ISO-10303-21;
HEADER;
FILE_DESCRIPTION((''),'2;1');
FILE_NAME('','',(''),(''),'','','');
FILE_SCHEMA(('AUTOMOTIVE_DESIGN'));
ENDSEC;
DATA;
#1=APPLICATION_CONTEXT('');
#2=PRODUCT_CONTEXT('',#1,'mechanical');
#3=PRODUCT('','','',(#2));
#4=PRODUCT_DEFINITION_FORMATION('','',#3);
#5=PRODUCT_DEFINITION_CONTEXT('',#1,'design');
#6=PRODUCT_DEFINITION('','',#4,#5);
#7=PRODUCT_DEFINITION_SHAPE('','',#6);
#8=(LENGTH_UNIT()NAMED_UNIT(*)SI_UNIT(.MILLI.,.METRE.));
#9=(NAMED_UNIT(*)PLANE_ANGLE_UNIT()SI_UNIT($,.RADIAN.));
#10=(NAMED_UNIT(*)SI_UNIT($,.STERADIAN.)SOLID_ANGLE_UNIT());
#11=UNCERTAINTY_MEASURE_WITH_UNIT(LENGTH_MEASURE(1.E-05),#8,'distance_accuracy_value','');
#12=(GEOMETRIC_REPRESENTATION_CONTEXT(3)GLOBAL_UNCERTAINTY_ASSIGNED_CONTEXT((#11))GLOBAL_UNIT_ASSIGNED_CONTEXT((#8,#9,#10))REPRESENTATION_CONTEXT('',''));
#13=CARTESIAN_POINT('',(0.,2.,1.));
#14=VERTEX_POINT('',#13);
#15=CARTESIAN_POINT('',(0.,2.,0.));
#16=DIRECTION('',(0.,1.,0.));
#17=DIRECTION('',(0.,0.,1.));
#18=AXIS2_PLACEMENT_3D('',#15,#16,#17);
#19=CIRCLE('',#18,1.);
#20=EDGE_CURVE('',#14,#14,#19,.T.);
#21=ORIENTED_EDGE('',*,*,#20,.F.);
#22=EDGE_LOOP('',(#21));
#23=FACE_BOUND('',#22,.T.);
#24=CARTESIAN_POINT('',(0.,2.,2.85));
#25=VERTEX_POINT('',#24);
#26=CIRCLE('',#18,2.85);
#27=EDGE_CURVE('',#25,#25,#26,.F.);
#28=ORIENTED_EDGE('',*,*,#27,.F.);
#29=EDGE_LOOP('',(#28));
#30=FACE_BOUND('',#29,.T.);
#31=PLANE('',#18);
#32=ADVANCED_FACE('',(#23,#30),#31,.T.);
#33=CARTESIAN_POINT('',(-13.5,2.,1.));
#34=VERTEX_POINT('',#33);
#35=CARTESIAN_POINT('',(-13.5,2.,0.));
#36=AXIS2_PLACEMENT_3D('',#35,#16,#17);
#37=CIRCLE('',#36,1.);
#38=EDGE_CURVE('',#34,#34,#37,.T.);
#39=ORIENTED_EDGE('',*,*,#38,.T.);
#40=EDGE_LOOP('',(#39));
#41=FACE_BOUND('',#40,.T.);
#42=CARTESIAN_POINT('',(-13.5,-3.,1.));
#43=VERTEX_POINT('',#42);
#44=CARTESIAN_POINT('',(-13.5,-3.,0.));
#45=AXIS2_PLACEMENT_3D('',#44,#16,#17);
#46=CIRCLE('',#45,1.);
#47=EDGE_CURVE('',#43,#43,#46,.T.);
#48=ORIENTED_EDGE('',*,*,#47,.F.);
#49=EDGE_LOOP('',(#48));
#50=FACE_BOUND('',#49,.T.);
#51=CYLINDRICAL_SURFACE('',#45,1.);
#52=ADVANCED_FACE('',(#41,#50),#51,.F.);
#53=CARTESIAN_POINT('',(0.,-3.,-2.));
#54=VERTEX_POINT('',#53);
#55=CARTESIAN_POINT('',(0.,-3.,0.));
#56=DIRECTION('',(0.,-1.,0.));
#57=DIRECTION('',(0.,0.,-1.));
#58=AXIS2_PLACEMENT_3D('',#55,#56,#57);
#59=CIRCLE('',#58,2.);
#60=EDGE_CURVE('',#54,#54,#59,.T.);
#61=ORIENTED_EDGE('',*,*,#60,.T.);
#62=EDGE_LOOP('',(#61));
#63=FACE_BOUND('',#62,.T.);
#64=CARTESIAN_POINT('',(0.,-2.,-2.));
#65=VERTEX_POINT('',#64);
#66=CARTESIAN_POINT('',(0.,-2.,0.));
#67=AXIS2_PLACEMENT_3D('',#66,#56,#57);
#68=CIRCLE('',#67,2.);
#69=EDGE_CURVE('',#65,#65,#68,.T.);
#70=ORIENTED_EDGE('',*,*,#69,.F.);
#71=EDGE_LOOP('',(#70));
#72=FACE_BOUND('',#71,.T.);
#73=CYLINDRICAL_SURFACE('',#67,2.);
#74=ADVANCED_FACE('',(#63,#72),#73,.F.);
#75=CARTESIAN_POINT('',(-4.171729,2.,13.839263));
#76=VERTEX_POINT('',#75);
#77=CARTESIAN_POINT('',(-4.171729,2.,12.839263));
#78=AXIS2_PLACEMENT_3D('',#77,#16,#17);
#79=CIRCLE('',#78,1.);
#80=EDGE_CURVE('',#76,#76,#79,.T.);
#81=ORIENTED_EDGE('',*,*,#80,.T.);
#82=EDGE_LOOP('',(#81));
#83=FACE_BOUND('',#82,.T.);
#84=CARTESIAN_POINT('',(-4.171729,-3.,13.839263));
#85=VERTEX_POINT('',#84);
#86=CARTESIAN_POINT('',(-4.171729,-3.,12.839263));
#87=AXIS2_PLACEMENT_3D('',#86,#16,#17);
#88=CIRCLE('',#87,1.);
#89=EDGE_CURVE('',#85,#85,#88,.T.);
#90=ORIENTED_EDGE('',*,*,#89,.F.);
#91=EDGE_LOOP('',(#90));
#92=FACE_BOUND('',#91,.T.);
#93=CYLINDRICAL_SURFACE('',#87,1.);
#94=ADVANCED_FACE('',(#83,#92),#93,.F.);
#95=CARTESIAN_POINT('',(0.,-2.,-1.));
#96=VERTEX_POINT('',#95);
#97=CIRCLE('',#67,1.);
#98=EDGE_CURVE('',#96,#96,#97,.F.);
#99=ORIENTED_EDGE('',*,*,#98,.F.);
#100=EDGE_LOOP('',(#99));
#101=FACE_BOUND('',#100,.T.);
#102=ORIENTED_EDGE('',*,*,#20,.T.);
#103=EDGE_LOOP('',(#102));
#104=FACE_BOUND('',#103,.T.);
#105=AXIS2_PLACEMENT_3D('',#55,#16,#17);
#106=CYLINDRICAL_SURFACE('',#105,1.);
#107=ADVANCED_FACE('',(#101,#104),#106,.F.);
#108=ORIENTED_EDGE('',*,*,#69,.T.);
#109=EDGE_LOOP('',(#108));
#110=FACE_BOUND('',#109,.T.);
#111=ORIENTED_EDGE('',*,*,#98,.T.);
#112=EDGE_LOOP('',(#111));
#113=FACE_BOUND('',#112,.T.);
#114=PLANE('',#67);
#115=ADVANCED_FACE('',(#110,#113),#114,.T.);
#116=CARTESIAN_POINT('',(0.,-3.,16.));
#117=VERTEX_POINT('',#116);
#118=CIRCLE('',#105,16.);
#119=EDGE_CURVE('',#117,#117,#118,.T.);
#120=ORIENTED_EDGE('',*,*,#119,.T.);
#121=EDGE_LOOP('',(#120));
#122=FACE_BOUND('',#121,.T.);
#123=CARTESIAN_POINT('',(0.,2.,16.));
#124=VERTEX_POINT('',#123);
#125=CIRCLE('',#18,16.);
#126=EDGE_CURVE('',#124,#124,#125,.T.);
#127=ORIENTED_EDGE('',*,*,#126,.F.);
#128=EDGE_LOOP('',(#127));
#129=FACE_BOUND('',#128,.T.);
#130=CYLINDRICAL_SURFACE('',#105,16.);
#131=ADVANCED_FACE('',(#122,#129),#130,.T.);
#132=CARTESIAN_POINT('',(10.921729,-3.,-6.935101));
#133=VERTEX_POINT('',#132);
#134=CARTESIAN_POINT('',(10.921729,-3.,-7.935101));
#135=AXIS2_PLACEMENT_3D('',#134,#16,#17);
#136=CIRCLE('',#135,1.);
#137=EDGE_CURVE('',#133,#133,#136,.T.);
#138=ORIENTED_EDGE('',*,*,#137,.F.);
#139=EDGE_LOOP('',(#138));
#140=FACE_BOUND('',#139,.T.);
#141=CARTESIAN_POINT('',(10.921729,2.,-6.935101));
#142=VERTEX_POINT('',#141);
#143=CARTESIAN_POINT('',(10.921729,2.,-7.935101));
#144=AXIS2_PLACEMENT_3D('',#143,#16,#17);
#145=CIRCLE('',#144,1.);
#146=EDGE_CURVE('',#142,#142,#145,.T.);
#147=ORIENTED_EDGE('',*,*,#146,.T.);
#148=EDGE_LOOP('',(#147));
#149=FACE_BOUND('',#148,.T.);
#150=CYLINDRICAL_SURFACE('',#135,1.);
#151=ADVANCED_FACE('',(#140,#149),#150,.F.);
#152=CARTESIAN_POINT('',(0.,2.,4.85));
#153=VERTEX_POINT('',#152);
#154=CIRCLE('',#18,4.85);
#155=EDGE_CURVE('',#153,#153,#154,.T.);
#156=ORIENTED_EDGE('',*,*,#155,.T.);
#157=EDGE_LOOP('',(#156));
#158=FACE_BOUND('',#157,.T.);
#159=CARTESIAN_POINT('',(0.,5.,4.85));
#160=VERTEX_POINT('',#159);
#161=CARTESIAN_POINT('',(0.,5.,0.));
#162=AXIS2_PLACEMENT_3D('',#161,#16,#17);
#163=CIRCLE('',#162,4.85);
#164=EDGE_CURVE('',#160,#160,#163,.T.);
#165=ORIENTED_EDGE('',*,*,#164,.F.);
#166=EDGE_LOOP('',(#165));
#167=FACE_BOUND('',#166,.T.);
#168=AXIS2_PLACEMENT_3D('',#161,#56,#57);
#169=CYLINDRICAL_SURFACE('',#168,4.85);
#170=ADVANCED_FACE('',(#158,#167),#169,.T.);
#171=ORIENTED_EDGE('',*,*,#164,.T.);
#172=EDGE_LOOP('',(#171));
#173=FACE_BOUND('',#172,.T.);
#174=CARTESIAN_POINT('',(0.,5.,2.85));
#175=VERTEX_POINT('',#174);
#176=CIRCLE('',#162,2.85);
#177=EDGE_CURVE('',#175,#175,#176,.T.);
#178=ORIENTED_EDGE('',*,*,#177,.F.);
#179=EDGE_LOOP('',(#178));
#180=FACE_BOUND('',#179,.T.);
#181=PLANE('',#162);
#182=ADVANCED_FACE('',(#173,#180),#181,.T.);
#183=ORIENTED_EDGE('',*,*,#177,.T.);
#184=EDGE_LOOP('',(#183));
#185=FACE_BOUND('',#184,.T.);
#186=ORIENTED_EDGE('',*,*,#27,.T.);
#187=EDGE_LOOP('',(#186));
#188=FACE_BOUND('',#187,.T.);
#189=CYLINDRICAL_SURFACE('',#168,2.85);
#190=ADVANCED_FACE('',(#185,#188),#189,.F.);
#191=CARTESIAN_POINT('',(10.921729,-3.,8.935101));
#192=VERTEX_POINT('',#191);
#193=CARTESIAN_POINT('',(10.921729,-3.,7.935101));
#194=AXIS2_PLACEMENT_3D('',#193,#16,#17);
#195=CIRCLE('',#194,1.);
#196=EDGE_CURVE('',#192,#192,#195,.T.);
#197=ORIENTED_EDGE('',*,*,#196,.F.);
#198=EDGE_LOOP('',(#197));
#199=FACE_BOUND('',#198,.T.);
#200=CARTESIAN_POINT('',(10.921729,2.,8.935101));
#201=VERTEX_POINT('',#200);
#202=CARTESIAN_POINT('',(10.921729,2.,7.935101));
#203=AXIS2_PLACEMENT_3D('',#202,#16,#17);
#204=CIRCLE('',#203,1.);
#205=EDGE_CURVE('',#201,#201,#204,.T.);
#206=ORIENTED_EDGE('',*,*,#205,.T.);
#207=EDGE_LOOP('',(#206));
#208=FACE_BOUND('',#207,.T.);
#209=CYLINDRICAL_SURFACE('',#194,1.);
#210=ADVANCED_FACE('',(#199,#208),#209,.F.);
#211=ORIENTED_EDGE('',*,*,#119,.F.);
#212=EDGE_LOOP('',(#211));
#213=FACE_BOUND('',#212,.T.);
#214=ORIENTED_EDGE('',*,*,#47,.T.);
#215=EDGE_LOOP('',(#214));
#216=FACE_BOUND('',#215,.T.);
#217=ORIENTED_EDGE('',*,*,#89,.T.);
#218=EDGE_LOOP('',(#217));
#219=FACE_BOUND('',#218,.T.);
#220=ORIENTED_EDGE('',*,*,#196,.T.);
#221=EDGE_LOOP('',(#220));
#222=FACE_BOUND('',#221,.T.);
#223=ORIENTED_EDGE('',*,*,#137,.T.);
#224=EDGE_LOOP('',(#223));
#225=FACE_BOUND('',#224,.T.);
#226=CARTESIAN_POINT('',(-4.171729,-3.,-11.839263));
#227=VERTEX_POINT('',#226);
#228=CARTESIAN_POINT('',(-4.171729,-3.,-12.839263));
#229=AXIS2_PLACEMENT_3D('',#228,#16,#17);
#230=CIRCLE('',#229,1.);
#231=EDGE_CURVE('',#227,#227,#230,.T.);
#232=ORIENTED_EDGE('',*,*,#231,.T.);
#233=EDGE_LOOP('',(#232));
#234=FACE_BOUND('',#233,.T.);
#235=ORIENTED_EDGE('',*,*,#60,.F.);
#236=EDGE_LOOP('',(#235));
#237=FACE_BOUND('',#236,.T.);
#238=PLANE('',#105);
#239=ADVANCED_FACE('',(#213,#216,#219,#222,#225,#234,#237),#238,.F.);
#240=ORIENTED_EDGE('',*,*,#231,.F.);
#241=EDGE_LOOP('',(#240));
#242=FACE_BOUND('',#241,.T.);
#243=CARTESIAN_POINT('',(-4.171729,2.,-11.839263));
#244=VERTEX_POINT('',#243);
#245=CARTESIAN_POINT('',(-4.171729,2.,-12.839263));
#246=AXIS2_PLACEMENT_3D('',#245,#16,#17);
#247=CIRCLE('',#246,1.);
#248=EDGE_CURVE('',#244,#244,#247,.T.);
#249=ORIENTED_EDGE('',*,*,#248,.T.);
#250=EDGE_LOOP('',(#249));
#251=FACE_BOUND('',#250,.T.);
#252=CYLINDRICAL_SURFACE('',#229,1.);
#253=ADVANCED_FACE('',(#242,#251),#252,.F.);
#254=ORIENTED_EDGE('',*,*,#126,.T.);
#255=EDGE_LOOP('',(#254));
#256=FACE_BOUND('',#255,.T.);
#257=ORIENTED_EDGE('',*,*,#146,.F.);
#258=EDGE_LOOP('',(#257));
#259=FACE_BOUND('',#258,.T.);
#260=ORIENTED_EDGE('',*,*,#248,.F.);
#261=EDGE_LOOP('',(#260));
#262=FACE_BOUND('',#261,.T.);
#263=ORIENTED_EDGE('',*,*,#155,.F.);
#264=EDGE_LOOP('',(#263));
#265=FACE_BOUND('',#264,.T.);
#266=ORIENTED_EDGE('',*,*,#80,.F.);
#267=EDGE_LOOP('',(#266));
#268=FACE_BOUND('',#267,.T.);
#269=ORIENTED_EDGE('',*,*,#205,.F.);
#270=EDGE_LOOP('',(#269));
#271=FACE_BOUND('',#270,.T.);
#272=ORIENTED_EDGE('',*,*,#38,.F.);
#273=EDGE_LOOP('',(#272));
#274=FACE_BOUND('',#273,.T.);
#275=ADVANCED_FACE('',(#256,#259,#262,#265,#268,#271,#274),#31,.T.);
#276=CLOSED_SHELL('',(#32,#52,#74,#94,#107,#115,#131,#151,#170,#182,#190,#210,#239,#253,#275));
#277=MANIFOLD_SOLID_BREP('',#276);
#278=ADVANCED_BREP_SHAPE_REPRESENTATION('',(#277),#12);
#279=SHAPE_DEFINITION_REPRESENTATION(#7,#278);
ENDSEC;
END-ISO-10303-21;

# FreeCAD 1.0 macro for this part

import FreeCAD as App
import Part
import Sketcher

V = App.Vector

doc = App.newDocument("Part")
params = doc.addObject("Spreadsheet::Sheet", "Params")
for row, (alias, value) in enumerate([
    ("sketch1_diameter", "32 mm"),
    ("sketch1_diameter2", "2 mm"),
    ("pad1_length", "2 mm"),
    ("pad1_length2", "3 mm"),
    ("sketch2_diameter", "9.7 mm"),
    ("sketch2_diameter2", "5.7 mm"),
    ("pad2_length", "3 mm"),
    ("sketch3_diameter", "4 mm"),
    ("pocket1_length", "1 mm"),
], start=1):
    params.set(f"A{row}", alias)
    params.set(f"B{row}", "=" + value)
    params.setAlias(f"B{row}", alias)

body = doc.addObject("PartDesign::Body", "Body")

sketch1 = doc.addObject("Sketcher::SketchObject", "Sketch")
body.addObject(sketch1)
sketch1.AttachmentSupport = (doc.XZ_Plane, [""])
sketch1.MapMode = "FlatFace"
sketch1.addGeometry(Part.Circle(V(0, 0, 0), V(0, 0, 1), 16), False)
sketch1.addGeometry(Part.Circle(V(-4.2, -12.8, 0), V(0, 0, 1), 1), False)
sketch1.addGeometry(Part.Circle(V(-13.5, 0, 0), V(0, 0, 1), 1), False)
sketch1.addGeometry(Part.Circle(V(-4.2, 12.8, 0), V(0, 0, 1), 1), False)
sketch1.addGeometry(Part.Circle(V(0, 0, 0), V(0, 0, 1), 1), False)
sketch1.addGeometry(Part.Circle(V(10.9, -7.9, 0), V(0, 0, 1), 1), False)
sketch1.addGeometry(Part.Circle(V(10.9, 7.9, 0), V(0, 0, 1), 1), False)
sketch1.addConstraint(Sketcher.Constraint("Coincident", 0, 3, -1, 1))
sketch1.addConstraint(Sketcher.Constraint("Coincident", 4, 3, -1, 1))
sketch1.addConstraint(Sketcher.Constraint("Equal", 1, 2))
sketch1.addConstraint(Sketcher.Constraint("Equal", 2, 3))
sketch1.addConstraint(Sketcher.Constraint("Equal", 3, 4))
sketch1.addConstraint(Sketcher.Constraint("Equal", 4, 5))
sketch1.addConstraint(Sketcher.Constraint("Equal", 5, 6))
sketch1.addConstraint(Sketcher.Constraint("Symmetric", 1, 3, 3, 3, -1))
sketch1.addConstraint(Sketcher.Constraint("Symmetric", 5, 3, 6, 3, -1))
sketch1.addConstraint(Sketcher.Constraint("PointOnObject", 2, 3, -1))
sketch1.addConstraint(Sketcher.Constraint("Diameter", 0, 32.0))
sketch1.addConstraint(Sketcher.Constraint("Diameter", 1, 2.0))
sketch1.addConstraint(Sketcher.Constraint("DistanceX", 2, 3, -1, 1, 13.5))
sketch1.addConstraint(Sketcher.Constraint("DistanceY", 5, 3, -1, 1, 7.935101))
sketch1.addConstraint(Sketcher.Constraint("DistanceX", 1, 3, -1, 1, 4.171729))
sketch1.addConstraint(Sketcher.Constraint("DistanceX", -1, 1, 5, 3, 10.921729))
sketch1.addConstraint(Sketcher.Constraint("DistanceY", 1, 3, -1, 1, 12.839263))
sketch1.setExpression("Constraints[10]", "Params.sketch1_diameter")
sketch1.setExpression("Constraints[11]", "Params.sketch1_diameter2")
pad1 = doc.addObject("PartDesign::Pad", "Pad")
body.addObject(pad1)
pad1.Profile = sketch1
pad1.Type = "TwoLengths"
pad1.setExpression("Length", "Params.pad1_length")
pad1.setExpression("Length2", "Params.pad1_length2")
pad1.Reversed = True

sketch2 = doc.addObject("Sketcher::SketchObject", "Sketch001")
body.addObject(sketch2)
sketch2.AttachmentSupport = (doc.XZ_Plane, [""])
sketch2.MapMode = "FlatFace"
sketch2.AttachmentOffset = App.Placement(V(0, 0, -2), App.Rotation())
sketch2.addGeometry(Part.Circle(V(0, 0, 0), V(0, 0, 1), 4.8), False)
sketch2.addGeometry(Part.Circle(V(0, 0, 0), V(0, 0, 1), 2.9), False)
sketch2.addConstraint(Sketcher.Constraint("Coincident", 0, 3, -1, 1))
sketch2.addConstraint(Sketcher.Constraint("Coincident", 1, 3, -1, 1))
sketch2.addConstraint(Sketcher.Constraint("Diameter", 0, 9.7))
sketch2.addConstraint(Sketcher.Constraint("Diameter", 1, 5.7))
sketch2.setExpression("Constraints[2]", "Params.sketch2_diameter")
sketch2.setExpression("Constraints[3]", "Params.sketch2_diameter2")
pad2 = doc.addObject("PartDesign::Pad", "Pad001")
body.addObject(pad2)
pad2.Profile = sketch2
pad2.setExpression("Length", "Params.pad2_length")
pad2.Reversed = True

sketch3 = doc.addObject("Sketcher::SketchObject", "Sketch002")
body.addObject(sketch3)
sketch3.AttachmentSupport = (doc.XZ_Plane, [""])
sketch3.MapMode = "FlatFace"
sketch3.AttachmentOffset = App.Placement(V(0, 0, 3), App.Rotation())
sketch3.addGeometry(Part.Circle(V(0, 0, 0), V(0, 0, 1), 2), False)
sketch3.addConstraint(Sketcher.Constraint("Coincident", 0, 3, -1, 1))
sketch3.addConstraint(Sketcher.Constraint("Diameter", 0, 4.0))
sketch3.setExpression("Constraints[1]", "Params.sketch3_diameter")
pocket1 = doc.addObject("PartDesign::Pocket", "Pocket")
body.addObject(pocket1)
pocket1.Profile = sketch3
pocket1.setExpression("Length", "Params.pocket1_length")

doc.recompute()
